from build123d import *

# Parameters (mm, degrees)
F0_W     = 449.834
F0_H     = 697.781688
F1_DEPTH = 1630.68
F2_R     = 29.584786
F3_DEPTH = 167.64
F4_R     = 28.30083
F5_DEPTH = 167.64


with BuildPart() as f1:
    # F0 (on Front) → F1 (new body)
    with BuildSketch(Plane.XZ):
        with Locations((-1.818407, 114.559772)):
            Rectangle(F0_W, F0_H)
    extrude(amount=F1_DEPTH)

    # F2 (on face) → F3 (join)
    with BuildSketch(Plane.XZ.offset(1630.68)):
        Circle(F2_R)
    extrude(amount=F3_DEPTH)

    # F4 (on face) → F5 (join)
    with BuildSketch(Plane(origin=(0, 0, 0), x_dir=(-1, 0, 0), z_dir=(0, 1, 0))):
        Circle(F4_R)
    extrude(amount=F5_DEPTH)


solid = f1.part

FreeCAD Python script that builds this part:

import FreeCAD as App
import Part
import Sketcher
from FreeCAD import Vector
Q = App.Units.Quantity

doc = App.newDocument("Part")
body = doc.addObject("PartDesign::Body", "Body")

sketch1 = body.newObject("Sketcher::SketchObject", "Sketch")
sketch1.AttachmentSupport = (doc.getObject("XZ_Plane"), [""])
sketch1.MapMode = "FlatFace"
sketch1.addGeometry(Part.LineSegment(Vector(-227, 463, 0), Vector(-227, -234, 0)), False)
sketch1.addGeometry(Part.LineSegment(Vector(-227, -234, 0), Vector(223, -234, 0)), False)
sketch1.addGeometry(Part.LineSegment(Vector(223, -234, 0), Vector(223, 463, 0)), False)
sketch1.addGeometry(Part.LineSegment(Vector(223, 463, 0), Vector(-227, 463, 0)), False)
sketch1.addConstraint(Sketcher.Constraint("Coincident", 0, 2, 1, 1))
sketch1.addConstraint(Sketcher.Constraint("Coincident", 1, 2, 2, 1))
sketch1.addConstraint(Sketcher.Constraint("Coincident", 2, 2, 3, 1))
sketch1.addConstraint(Sketcher.Constraint("Coincident", 3, 2, 0, 1))
sketch1.addConstraint(Sketcher.Constraint("Vertical", 0))
sketch1.addConstraint(Sketcher.Constraint("Horizontal", 1))
sketch1.addConstraint(Sketcher.Constraint("Vertical", 2))
sketch1.addConstraint(Sketcher.Constraint("Horizontal", 3))
sketch1.addConstraint(Sketcher.Constraint("DistanceX", 1, 1, 1, 2, Q("17.71 in")))
sketch1.addConstraint(Sketcher.Constraint("DistanceY", 0, 2, 0, 1, Q("697.781688 mm")))
sketch1.addConstraint(Sketcher.Constraint("DistanceY", 0, 2, -1, 1, Q("234.331072 mm")))
sketch1.addConstraint(Sketcher.Constraint("DistanceX", 0, 2, -1, 1, Q("226.735407 mm")))
pad1 = body.newObject("PartDesign::Pad", "Pad")
pad1.Profile = sketch1
pad1.Length = Q("64.2 in")

sketch2 = body.newObject("Sketcher::SketchObject", "Sketch001")
sketch2.AttachmentSupport = (doc.getObject("XZ_Plane"), [""])
sketch2.MapMode = "FlatFace"
sketch2.AttachmentOffset = App.Placement(Vector(0, 0, 64.2 * 25.4), App.Rotation())
sketch2.addGeometry(Part.Circle(Vector(0, 0, 0), Vector(0, 0, 1), 30), False)
sketch2.addConstraint(Sketcher.Constraint("Coincident", 0, 3, -1, 1))
sketch2.addConstraint(Sketcher.Constraint("Diameter", 0, Q("59.169572 mm")))
pad2 = body.newObject("PartDesign::Pad", "Pad001")
pad2.Profile = sketch2
pad2.Length = Q("6.6 in")

sketch3 = body.newObject("Sketcher::SketchObject", "Sketch002")
sketch3.AttachmentSupport = (doc.getObject("XZ_Plane"), [""])
sketch3.MapMode = "FlatFace"
sketch3.addGeometry(Part.Circle(Vector(0, 0, 0), Vector(0, 0, 1), 28), False)
sketch3.addConstraint(Sketcher.Constraint("Coincident", 0, 3, -1, 1))
sketch3.addConstraint(Sketcher.Constraint("Diameter", 0, Q("56.60166 mm")))
pad3 = body.newObject("PartDesign::Pad", "Pad002")
pad3.Profile = sketch3
pad3.Length = Q("6.6 in")
pad3.Reversed = True

doc.recompute()
